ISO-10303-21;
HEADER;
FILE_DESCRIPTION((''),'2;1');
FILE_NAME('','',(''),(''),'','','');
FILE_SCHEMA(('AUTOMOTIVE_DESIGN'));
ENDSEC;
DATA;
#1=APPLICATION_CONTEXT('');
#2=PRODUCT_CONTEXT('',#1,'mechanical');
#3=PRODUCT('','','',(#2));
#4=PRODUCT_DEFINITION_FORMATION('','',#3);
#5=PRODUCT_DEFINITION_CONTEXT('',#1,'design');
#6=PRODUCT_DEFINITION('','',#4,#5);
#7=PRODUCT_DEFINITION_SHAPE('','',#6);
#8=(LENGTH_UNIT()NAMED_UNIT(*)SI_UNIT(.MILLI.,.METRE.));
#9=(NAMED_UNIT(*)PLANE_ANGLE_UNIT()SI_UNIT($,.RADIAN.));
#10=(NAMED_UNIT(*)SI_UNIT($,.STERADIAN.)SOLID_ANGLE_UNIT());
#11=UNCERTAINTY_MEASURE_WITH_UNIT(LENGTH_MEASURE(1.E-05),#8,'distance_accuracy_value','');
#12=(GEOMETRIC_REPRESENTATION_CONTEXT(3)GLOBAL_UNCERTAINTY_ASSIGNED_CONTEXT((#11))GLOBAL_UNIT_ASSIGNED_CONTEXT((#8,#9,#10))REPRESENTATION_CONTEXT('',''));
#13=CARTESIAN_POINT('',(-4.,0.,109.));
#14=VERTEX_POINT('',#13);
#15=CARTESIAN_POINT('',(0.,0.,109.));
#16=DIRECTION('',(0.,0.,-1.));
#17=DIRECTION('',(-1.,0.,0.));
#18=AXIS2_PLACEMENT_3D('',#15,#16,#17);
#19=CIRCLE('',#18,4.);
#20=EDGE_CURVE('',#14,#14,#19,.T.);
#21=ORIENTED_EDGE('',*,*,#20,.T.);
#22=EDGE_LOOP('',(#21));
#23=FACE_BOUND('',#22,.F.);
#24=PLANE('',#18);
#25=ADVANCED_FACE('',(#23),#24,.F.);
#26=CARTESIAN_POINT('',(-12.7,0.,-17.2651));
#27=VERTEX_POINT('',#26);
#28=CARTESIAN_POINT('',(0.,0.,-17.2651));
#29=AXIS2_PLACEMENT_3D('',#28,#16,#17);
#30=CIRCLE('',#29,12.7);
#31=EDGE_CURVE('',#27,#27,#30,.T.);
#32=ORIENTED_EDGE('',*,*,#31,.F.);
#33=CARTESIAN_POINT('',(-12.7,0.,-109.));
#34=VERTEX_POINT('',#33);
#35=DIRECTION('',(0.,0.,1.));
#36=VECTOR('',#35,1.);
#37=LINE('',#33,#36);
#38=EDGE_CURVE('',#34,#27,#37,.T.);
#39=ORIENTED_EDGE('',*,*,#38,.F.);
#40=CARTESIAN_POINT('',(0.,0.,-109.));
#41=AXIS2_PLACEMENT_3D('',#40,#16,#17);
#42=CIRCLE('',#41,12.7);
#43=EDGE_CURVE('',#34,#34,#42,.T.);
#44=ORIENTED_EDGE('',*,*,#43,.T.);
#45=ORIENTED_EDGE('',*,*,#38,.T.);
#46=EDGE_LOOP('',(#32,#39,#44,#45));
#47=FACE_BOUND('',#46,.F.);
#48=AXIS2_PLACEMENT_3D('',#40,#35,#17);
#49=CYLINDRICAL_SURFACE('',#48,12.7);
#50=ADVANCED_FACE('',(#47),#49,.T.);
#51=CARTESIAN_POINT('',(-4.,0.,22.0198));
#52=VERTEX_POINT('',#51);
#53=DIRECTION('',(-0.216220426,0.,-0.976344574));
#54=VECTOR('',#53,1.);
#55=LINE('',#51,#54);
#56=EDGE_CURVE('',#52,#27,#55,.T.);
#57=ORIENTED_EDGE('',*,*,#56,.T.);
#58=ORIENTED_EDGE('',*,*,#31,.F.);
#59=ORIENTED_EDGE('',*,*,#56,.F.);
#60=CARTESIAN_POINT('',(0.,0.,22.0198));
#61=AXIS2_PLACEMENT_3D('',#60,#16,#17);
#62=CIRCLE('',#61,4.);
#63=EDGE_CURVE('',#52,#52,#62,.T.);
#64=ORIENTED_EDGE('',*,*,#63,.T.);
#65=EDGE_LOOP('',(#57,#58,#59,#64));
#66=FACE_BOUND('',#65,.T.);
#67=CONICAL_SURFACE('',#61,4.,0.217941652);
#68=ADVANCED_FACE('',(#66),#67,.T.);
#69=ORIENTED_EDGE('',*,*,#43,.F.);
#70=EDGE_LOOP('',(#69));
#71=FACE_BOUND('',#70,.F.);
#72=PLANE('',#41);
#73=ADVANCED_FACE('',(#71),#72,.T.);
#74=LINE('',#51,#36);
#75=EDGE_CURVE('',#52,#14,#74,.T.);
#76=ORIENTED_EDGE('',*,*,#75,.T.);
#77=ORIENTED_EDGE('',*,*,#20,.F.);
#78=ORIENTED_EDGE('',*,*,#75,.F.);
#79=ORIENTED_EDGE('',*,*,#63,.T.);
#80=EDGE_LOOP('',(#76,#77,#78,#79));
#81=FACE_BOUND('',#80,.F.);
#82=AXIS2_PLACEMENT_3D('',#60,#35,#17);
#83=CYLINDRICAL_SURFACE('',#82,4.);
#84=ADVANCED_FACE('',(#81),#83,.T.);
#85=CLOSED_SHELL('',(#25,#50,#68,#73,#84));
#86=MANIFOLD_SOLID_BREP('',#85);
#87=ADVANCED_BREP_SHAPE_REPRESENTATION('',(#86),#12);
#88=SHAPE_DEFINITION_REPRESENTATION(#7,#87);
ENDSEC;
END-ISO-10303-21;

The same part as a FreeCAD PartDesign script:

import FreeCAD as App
import Part
import Sketcher

V = App.Vector


def add_polygon(sketch, points):
    """Adds a closed chain of lines whose ends are joined by coincident constraints."""
    first, n = sketch.GeometryCount, len(points)
    for a, b in zip(points, points[1:] + points[:1]):
        sketch.addGeometry(Part.LineSegment(App.Vector(*a, 0), App.Vector(*b, 0)), False)
    for i in range(n):
        sketch.addConstraint(Sketcher.Constraint("Coincident", first + i, 2, first + (i + 1) % n, 1))

doc = App.newDocument("Part")
body = doc.addObject("PartDesign::Body", "Body")

# Sketch on XZ plane
sketch1 = doc.addObject("Sketcher::SketchObject", "Sketch")
body.addObject(sketch1)
sketch1.AttachmentSupport = (doc.XZ_Plane, [""])
sketch1.MapMode = "FlatFace"
add_polygon(sketch1, [(-4, 22), (-4, 109), (0, 109), (0, -109), (-12.7, -109), (-12.7, -17.3)])  # lines 0-5
sketch1.addConstraint([
    Sketcher.Constraint("Vertical", 0),
    Sketcher.Constraint("Horizontal", 1),
    Sketcher.Constraint("Vertical", 2),
    Sketcher.Constraint("Horizontal", 3),
    Sketcher.Constraint("Vertical", 4),
    Sketcher.Constraint("Symmetric", 1, 2, 2, 2, -1, 1),
    Sketcher.Constraint("DistanceY", 2, 2, 2, 1, 218.0),
    Sketcher.Constraint("DistanceX", 1, 1, 1, 2, 4.0),
    Sketcher.Constraint("DistanceX", 3, 2, 3, 1, 12.7),
    Sketcher.Constraint("DistanceY", 4, 1, 4, 2, 91.735),
    Sketcher.Constraint("DistanceY", 0, 1, 0, 2, 86.9802),
])
revolution = doc.addObject("PartDesign::Revolution", "Revolution")
body.addObject(revolution)
revolution.Profile = sketch1
revolution.ReferenceAxis = (sketch1, ["V_Axis"])
revolution.Angle = 360

doc.recompute()
